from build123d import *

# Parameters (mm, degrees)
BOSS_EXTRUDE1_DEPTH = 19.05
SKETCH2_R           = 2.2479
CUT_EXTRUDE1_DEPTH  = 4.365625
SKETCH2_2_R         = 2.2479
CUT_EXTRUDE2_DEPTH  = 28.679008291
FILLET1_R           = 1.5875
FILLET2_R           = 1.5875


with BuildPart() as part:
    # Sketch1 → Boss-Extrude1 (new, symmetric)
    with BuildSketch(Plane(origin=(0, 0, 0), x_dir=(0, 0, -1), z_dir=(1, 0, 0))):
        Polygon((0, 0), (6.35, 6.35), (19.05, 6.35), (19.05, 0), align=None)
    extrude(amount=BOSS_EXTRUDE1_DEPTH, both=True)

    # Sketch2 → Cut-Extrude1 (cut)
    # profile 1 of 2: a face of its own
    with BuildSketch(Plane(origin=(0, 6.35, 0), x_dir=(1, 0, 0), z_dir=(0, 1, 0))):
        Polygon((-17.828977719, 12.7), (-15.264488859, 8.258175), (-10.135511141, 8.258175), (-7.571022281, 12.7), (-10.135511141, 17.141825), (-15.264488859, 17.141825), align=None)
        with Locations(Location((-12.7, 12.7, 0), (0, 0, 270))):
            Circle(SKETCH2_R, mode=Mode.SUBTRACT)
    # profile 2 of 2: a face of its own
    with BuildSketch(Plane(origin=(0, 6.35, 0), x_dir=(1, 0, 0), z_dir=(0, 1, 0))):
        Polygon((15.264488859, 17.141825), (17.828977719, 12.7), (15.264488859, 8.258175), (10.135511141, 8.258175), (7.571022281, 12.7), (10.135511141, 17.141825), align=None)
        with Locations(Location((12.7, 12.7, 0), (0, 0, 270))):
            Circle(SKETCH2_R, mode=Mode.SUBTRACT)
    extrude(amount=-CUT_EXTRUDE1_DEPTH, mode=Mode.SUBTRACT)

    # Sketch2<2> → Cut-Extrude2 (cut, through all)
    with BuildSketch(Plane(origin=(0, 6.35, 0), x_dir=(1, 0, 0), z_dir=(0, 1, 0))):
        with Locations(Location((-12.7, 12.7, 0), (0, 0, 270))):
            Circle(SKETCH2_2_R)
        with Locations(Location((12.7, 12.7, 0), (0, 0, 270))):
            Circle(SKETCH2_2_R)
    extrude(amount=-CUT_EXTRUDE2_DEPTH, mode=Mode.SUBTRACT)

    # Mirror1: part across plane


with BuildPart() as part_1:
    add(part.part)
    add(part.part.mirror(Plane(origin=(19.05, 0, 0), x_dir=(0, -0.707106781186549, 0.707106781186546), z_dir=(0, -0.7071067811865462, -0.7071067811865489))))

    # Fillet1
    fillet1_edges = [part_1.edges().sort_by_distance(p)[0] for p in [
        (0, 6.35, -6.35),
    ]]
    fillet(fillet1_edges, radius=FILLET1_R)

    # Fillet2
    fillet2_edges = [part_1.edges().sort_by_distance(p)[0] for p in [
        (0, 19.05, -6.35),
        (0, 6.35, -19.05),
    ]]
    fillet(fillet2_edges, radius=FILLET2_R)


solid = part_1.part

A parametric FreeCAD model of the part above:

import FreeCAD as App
import Part
import Sketcher

V = App.Vector
Q = App.Units.Quantity


def edges_at(feature, points):
    """Names of the edges that pass closest to the given points."""
    edges = feature.Shape.Edges
    near = lambda p: min(range(len(edges)), key=lambda i: edges[i].distToShape(Part.Vertex(*p))[0])
    return sorted({f"Edge{near(p) + 1}" for p in points})

doc = App.newDocument("Part")
body = doc.addObject("PartDesign::Body", "Body")

sketch1 = body.newObject("Sketcher::SketchObject", "Sketch")
sketch1.AttachmentSupport = (doc.getObject("YZ_Plane"), [""])
sketch1.MapMode = "FlatFace"
sketch1.addGeometry([
    Part.LineSegment(V(6.35, -6.35, 0), V(0, 0, 0)),
    Part.LineSegment(V(0, 0, 0), V(0, -19.05, 0)),
    Part.LineSegment(V(0, -19.05, 0), V(6.35, -19.05, 0)),
    Part.LineSegment(V(6.35, -19.05, 0), V(6.35, -6.35, 0)),
], False)
sketch1.addConstraint([
    Sketcher.Constraint("Coincident", 0, 2, 1, 1),
    Sketcher.Constraint("Coincident", 1, 2, 2, 1),
    Sketcher.Constraint("Coincident", 2, 2, 3, 1),
    Sketcher.Constraint("Coincident", 3, 2, 0, 1),
    Sketcher.Constraint("Vertical", 1),
    Sketcher.Constraint("Horizontal", 2),
    Sketcher.Constraint("Vertical", 3),
    Sketcher.Constraint("Coincident", 0, 2, -1, 1),
    Sketcher.Constraint("DistanceY", 3, 1, 3, 2, Q("0.5 in")),
    Sketcher.Constraint("Angle", 0, Q("135 deg")),
    Sketcher.Constraint("DistanceX", 2, 1, 2, 2, Q("0.25 in")),
])
pad1 = body.newObject("PartDesign::Pad", "Pad")
pad1.Profile = sketch1
pad1.Length = Q("1.5 in")
pad1.Midplane = True

sketch2 = body.newObject("Sketcher::SketchObject", "Sketch001")
sketch2.AttachmentSupport = (doc.getObject("XZ_Plane"), [""])
sketch2.MapMode = "FlatFace"
sketch2.AttachmentOffset = App.Placement(V(0, 0, -0.25 * 25.4), App.Rotation())
sketch2.addGeometry([
    Part.LineSegment(V(-17.828978, -12.7, 0), V(-15.264489, -8.258175, 0)),
    Part.LineSegment(V(-15.264489, -8.258175, 0), V(-10.135511, -8.258175, 0)),
    Part.LineSegment(V(-10.135511, -8.258175, 0), V(-7.571022, -12.7, 0)),
    Part.LineSegment(V(-7.571022, -12.7, 0), V(-10.135511, -17.141825, 0)),
    Part.LineSegment(V(-10.135511, -17.141825, 0), V(-15.264489, -17.141825, 0)),
    Part.LineSegment(V(-15.264489, -17.141825, 0), V(-17.828978, -12.7, 0)),
    Part.Circle(V(-12.7, -12.7, 0), V(0, 0, 1), 2.2479),
    Part.LineSegment(V(17.828978, -12.7, 0), V(15.264489, -17.141825, 0)),
    Part.LineSegment(V(15.264489, -17.141825, 0), V(10.135511, -17.141825, 0)),
    Part.LineSegment(V(10.135511, -17.141825, 0), V(7.571022, -12.7, 0)),
    Part.LineSegment(V(7.571022, -12.7, 0), V(10.135511, -8.258175, 0)),
    Part.LineSegment(V(10.135511, -8.258175, 0), V(15.264489, -8.258175, 0)),
    Part.LineSegment(V(15.264489, -8.258175, 0), V(17.828978, -12.7, 0)),
    Part.Circle(V(12.7, -12.7, 0), V(0, 0, 1), 2.2479),
], False)
sketch2.addConstraint([
    Sketcher.Constraint("Coincident", 0, 2, 1, 1),
    Sketcher.Constraint("Coincident", 1, 2, 2, 1),
    Sketcher.Constraint("Coincident", 2, 2, 3, 1),
    Sketcher.Constraint("Coincident", 3, 2, 4, 1),
    Sketcher.Constraint("Coincident", 4, 2, 5, 1),
    Sketcher.Constraint("Coincident", 5, 2, 0, 1),
    Sketcher.Constraint("Coincident", 7, 2, 8, 1),
    Sketcher.Constraint("Coincident", 8, 2, 9, 1),
    Sketcher.Constraint("Coincident", 9, 2, 10, 1),
    Sketcher.Constraint("Coincident", 10, 2, 11, 1),
    Sketcher.Constraint("Coincident", 11, 2, 12, 1),
    Sketcher.Constraint("Coincident", 12, 2, 7, 1),
    Sketcher.Constraint("Horizontal", 1),
    Sketcher.Constraint("Horizontal", 4),
    Sketcher.Constraint("Horizontal", 8),
    Sketcher.Constraint("Horizontal", 11),
    Sketcher.Constraint("Equal", 6, 13),
    Sketcher.Constraint("Symmetric", 6, 3, 13, 3, -2),
    Sketcher.Constraint("Symmetric", 4, 2, 7, 2, -2),
    Sketcher.Constraint("Symmetric", 2, 2, 9, 2, -2),
    Sketcher.Constraint("Symmetric", 1, 2, 10, 2, -2),
    Sketcher.Constraint("Symmetric", 5, 2, 12, 2, -2),
    Sketcher.Constraint("Parallel", 0, 3),
    Sketcher.Constraint("Parallel", 2, 5),
    Sketcher.Constraint("Parallel", 3, 7),
    Sketcher.Constraint("Parallel", 5, 9),
    Sketcher.Constraint("Parallel", 9, 12),
    Sketcher.Constraint("Horizontal", 13, 3, 2, 2),
    Sketcher.Constraint("Horizontal", 2, 2, 5, 2),
    Sketcher.Constraint("Vertical", 1, 2, 3, 2),
    Sketcher.Constraint("Diameter", 6, Q("0.177 in")),
    Sketcher.Constraint("Angle", 0, Q("60 deg")),
    Sketcher.Constraint("DistanceX", 6, 3, 13, 3, Q("1 in")),
    Sketcher.Constraint("DistanceX", 3, 2, 7, 2, Q("1 in")),
    Sketcher.Constraint("DistanceY", 6, 3, -1, 1, Q("0.5 in")),
    Sketcher.Constraint("DistanceX", 1, 1, 1, 2, 5.128978),
    Sketcher.Constraint("DistanceX", 1, 2, 2, 2, 2.564489),
])
pocket1 = body.newObject("PartDesign::Pocket", "Pocket")
pocket1.Profile = sketch2
pocket1.Length = Q("0.171875 in")
pocket1.Reversed = True

sketch3 = body.newObject("Sketcher::SketchObject", "Sketch002")
sketch3.AttachmentSupport = (doc.getObject("XZ_Plane"), [""])
sketch3.MapMode = "FlatFace"
sketch3.AttachmentOffset = App.Placement(V(0, 0, -0.25 * 25.4), App.Rotation())
sketch3.addGeometry([
    Part.Circle(V(-12.7, -12.7, 0), V(0, 0, 1), 2.2479),
    Part.Circle(V(12.7, -12.7, 0), V(0, 0, 1), 2.2479),
], False)
sketch3.addConstraint([
    Sketcher.Constraint("Equal", 0, 1),
    Sketcher.Constraint("Symmetric", 0, 3, 1, 3, -2),
    Sketcher.Constraint("Diameter", 0, Q("0.177 in")),
    Sketcher.Constraint("DistanceX", 0, 3, 1, 3, Q("1 in")),
    Sketcher.Constraint("DistanceY", 0, 3, -1, 1, Q("0.5 in")),
])
pocket2 = body.newObject("PartDesign::Pocket", "Pocket001")
pocket2.Profile = sketch3
pocket2.Type = "ThroughAll"
pocket2.Reversed = True
body2 = doc.addObject("PartDesign::Body", "Body001")
doc.recompute()

body2.BaseFeature = body
doc.recompute()

mirroring = doc.addObject("Part::Mirroring", "Mirroring")
mirroring.Source = body
mirroring.Base = V(19.05, 0, 0)
mirroring.Normal = V(0, -0.707106781, -0.707106781)
body3 = doc.addObject("PartDesign::Body", "Body002")
body3.BaseFeature = mirroring
boolean = body2.newObject("PartDesign::Boolean", "Boolean")
boolean.Type = "Fuse"
boolean.addObjects([body3])
doc.recompute()

fillet = body2.newObject("PartDesign::Fillet", "Fillet")
fillet.Base = (boolean, edges_at(boolean, [(0, 6.35, -6.35)]))
fillet.Radius = Q("0.0625 in")
doc.recompute()

fillet2 = body2.newObject("PartDesign::Fillet", "Fillet001")
fillet2.Base = (fillet, edges_at(fillet, [(0, 19.05, -6.35), (0, 6.35, -19.05)]))
fillet2.Radius = Q("0.0625 in")
mirroring.Visibility = False

doc.recompute()
